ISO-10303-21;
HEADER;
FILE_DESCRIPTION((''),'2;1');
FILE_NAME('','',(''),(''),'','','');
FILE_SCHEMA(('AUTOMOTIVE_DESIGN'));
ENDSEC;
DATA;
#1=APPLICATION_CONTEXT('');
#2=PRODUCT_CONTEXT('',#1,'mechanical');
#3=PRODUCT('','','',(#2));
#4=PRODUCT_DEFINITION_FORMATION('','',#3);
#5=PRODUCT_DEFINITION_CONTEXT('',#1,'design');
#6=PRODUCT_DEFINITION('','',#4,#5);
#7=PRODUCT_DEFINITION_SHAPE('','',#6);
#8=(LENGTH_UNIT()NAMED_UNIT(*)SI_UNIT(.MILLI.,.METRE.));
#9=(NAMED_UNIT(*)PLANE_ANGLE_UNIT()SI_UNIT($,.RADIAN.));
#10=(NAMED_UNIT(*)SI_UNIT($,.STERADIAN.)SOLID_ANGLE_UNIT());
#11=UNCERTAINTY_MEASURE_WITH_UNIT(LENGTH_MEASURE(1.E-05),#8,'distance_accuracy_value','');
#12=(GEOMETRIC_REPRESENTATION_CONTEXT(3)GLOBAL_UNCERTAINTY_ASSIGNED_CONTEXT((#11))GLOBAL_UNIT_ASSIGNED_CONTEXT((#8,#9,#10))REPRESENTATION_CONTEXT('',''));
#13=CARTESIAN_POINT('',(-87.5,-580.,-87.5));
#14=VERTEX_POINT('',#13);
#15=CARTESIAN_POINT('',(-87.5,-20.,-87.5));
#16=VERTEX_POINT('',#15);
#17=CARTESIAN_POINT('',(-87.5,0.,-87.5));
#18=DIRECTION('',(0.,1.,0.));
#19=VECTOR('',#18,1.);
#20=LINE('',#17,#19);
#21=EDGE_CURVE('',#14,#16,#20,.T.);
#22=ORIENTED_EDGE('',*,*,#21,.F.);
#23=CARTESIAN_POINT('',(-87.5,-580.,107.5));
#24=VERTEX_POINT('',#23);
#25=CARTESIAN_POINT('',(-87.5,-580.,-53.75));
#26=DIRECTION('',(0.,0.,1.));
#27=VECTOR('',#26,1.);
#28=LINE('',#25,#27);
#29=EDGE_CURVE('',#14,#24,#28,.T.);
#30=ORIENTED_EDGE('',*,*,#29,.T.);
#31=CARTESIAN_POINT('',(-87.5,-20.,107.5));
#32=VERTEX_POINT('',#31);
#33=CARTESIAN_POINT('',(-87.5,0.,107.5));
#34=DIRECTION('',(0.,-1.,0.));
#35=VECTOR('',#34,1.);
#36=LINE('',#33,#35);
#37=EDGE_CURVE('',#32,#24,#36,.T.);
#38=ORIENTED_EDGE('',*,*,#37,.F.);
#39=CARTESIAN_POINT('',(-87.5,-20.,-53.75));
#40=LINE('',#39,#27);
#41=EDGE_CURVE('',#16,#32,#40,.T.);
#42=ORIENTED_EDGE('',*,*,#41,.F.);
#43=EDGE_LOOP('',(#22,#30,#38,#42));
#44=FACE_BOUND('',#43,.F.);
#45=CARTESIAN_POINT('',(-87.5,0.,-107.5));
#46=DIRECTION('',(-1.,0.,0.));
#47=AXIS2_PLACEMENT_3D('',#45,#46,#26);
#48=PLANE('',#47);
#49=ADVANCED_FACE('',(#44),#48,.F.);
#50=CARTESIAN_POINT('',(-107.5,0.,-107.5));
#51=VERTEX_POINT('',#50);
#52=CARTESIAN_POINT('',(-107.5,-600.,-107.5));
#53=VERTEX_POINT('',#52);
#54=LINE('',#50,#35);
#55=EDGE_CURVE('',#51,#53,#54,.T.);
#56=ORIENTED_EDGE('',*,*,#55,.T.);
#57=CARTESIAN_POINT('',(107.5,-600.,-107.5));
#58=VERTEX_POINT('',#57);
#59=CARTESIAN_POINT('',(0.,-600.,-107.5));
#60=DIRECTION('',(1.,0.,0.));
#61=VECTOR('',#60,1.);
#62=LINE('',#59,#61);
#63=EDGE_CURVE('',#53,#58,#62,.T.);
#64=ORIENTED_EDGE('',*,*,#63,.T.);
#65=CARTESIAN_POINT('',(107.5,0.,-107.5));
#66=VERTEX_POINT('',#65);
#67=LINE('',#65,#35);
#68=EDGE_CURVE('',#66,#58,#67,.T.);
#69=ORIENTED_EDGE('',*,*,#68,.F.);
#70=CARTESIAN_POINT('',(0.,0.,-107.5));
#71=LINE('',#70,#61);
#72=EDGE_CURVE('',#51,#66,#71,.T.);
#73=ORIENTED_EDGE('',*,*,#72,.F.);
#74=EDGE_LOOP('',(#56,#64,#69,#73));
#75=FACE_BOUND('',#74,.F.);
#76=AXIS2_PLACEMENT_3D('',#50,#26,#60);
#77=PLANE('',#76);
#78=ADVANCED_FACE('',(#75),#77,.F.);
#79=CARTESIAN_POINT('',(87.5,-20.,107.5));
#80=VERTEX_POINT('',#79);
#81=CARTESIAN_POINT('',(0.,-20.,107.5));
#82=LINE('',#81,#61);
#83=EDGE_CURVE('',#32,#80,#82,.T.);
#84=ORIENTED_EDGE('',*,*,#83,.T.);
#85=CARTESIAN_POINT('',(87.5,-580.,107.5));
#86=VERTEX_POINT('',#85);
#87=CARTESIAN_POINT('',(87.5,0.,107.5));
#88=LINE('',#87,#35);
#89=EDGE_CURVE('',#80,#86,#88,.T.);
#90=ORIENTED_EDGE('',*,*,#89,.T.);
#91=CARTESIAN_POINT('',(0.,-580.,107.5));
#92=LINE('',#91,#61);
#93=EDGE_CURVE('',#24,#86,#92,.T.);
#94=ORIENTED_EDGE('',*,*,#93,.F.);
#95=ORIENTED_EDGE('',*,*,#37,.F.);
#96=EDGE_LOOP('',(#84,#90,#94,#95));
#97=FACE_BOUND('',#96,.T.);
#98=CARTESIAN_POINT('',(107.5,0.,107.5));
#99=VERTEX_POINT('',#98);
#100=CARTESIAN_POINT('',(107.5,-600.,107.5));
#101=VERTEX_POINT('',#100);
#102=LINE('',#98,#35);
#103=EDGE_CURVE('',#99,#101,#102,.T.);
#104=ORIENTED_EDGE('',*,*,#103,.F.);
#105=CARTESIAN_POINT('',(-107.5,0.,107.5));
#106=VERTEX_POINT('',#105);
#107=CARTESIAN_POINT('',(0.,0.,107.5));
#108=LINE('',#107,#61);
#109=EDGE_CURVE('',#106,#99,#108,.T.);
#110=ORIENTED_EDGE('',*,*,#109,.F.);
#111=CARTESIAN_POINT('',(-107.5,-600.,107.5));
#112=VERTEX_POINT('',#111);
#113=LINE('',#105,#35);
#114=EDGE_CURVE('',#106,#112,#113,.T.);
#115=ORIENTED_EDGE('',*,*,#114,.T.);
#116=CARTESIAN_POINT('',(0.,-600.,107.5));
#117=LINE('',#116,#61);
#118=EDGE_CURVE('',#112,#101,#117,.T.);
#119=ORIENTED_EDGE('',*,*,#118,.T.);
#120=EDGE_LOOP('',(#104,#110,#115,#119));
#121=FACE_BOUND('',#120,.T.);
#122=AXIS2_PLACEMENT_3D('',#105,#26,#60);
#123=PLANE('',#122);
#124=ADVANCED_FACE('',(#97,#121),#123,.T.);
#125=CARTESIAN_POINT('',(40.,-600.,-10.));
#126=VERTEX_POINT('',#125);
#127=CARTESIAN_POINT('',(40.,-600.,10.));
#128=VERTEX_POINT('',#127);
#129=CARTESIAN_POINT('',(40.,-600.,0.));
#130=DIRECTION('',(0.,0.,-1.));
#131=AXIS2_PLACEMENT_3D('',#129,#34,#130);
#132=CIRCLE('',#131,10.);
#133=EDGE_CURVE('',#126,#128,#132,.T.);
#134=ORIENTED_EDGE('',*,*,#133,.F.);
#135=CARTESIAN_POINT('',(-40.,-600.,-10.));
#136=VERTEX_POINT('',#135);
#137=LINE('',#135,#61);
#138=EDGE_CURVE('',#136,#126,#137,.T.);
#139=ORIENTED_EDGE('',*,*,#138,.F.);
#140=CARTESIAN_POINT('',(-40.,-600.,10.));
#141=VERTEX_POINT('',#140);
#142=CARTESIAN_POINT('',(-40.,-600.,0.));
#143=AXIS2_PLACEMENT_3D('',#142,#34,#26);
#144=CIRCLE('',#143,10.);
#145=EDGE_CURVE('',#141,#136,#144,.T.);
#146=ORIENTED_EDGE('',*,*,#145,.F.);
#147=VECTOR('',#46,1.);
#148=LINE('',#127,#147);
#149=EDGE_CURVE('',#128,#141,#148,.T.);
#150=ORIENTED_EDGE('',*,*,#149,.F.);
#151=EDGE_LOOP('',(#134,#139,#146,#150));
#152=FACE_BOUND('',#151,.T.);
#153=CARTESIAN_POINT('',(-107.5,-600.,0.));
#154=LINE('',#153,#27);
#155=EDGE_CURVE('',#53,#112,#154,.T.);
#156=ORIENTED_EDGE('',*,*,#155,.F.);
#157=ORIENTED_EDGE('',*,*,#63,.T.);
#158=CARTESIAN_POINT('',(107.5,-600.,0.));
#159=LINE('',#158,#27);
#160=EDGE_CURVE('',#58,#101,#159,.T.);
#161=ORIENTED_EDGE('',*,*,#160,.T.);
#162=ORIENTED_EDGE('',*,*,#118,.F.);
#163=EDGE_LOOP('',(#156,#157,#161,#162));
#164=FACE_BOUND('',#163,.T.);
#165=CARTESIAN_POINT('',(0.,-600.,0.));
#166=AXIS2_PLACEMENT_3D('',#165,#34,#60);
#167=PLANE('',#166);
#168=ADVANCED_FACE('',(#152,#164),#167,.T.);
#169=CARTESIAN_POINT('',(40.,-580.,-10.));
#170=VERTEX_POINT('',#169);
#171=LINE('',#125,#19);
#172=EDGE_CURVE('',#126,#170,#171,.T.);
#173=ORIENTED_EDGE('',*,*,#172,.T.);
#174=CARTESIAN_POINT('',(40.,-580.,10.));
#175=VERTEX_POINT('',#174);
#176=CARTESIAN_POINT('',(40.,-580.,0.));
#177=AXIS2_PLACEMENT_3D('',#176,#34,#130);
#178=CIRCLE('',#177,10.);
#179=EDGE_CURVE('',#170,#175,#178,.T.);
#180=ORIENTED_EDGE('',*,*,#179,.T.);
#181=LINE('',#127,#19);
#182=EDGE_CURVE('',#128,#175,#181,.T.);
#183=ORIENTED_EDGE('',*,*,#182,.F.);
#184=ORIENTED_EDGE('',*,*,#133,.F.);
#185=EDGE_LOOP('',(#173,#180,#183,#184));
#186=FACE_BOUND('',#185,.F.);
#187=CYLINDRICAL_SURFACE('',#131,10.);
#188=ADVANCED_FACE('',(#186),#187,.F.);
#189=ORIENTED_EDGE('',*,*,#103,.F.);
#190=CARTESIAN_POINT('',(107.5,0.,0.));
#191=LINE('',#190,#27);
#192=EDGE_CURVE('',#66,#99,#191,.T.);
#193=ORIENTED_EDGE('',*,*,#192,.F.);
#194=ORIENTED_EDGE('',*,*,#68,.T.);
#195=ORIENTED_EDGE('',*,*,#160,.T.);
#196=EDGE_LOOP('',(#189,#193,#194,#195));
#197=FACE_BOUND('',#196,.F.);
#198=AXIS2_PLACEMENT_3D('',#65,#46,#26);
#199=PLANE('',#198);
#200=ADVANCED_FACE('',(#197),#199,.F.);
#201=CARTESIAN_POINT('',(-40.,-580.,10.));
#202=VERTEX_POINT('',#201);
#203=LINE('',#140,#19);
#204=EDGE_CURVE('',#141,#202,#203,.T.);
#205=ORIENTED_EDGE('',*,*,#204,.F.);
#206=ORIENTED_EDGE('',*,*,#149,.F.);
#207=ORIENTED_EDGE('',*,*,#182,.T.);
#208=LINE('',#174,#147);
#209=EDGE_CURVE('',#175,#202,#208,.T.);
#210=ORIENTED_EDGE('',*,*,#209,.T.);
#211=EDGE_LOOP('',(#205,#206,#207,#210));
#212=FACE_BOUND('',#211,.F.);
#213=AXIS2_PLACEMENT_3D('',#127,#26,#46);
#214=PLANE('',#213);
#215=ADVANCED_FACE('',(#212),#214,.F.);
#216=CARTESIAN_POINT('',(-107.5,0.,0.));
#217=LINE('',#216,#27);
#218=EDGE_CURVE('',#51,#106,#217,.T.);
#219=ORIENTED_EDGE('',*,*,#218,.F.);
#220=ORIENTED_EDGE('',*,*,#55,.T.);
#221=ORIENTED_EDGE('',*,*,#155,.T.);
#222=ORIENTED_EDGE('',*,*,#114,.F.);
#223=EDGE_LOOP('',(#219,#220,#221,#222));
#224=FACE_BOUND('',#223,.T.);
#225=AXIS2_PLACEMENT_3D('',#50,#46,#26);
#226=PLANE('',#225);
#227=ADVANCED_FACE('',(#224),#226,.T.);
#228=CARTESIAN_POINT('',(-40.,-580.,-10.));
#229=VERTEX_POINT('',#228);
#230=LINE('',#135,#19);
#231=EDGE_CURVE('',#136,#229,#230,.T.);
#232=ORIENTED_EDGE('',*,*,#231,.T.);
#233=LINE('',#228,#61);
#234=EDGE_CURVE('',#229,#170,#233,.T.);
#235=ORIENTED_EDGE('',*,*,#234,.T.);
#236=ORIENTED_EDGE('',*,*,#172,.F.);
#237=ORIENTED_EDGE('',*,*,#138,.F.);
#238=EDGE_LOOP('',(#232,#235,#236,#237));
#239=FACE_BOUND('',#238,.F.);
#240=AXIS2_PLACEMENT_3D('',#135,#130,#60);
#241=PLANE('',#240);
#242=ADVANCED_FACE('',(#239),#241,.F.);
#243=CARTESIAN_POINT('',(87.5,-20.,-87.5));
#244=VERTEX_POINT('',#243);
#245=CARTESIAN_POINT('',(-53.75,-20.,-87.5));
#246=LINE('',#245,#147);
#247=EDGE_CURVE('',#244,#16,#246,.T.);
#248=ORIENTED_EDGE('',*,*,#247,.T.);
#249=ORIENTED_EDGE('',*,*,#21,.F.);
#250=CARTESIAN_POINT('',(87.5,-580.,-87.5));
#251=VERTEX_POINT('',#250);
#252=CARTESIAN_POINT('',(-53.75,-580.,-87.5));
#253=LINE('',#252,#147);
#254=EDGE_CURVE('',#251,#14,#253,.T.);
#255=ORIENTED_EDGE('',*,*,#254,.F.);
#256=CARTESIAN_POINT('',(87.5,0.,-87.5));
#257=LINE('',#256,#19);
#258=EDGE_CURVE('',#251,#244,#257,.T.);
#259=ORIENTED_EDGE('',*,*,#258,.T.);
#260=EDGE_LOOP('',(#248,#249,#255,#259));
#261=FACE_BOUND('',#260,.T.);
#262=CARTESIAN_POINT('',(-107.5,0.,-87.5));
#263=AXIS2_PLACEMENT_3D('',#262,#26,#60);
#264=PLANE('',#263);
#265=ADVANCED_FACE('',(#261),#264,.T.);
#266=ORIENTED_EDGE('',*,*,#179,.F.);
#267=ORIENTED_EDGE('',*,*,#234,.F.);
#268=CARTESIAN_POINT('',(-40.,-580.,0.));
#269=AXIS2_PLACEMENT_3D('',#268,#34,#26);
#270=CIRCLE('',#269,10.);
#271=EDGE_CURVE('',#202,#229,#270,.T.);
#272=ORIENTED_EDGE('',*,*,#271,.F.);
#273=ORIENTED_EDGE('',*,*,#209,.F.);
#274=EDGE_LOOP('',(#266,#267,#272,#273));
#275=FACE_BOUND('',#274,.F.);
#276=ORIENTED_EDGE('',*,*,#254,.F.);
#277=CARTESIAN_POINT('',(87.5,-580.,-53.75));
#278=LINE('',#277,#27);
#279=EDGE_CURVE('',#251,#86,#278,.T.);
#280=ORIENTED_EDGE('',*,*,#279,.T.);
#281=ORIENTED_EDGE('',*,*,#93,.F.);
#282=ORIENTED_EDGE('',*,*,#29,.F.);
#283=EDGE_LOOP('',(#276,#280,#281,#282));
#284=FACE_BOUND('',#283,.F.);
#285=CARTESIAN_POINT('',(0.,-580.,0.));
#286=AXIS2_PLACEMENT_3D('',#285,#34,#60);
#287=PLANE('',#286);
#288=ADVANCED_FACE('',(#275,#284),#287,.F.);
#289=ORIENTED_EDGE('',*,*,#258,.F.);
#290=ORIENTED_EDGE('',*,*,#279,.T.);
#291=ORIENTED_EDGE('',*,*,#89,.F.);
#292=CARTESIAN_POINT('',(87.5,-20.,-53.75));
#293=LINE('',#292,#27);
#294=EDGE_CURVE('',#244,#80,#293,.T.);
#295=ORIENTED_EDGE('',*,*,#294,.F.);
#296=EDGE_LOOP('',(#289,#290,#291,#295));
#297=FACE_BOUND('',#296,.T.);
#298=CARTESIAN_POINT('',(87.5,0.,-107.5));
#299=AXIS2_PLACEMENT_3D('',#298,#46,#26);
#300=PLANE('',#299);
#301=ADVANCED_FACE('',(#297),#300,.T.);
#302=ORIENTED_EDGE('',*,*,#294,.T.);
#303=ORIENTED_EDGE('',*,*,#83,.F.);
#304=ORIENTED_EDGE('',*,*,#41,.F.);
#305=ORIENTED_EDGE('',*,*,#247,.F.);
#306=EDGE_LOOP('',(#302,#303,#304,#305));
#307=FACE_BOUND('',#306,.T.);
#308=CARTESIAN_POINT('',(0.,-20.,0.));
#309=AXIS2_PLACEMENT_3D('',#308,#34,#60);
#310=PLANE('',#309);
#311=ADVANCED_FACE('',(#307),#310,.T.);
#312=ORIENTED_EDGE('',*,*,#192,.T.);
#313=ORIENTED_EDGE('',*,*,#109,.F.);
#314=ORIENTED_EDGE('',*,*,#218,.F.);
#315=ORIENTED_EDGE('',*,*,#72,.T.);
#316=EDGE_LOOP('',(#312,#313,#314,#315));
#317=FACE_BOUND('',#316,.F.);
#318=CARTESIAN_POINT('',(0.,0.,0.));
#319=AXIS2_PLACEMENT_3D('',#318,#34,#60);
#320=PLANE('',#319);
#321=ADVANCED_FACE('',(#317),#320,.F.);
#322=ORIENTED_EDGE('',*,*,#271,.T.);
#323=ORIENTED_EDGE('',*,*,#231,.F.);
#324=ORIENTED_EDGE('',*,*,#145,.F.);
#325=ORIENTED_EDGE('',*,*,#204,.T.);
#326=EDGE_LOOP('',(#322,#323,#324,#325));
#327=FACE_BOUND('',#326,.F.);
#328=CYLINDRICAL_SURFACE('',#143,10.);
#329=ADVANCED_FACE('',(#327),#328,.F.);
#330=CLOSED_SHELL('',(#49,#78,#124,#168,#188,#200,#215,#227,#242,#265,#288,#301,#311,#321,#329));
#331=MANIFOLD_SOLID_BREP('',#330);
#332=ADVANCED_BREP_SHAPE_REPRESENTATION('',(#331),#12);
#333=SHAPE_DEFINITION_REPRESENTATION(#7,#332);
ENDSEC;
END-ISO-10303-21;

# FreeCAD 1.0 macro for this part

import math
import FreeCAD as App
import Part
import Sketcher
from FreeCAD import Vector
Q = App.Units.Quantity


def faces_at(feature, points):
    """Names of the faces that lie closest to the given points."""
    faces = feature.Shape.Faces
    near = lambda p: min(range(len(faces)), key=lambda i: faces[i].distToShape(Part.Vertex(*p))[0])
    return sorted({f"Face{near(p) + 1}" for p in points})


def add_polygon(sketch, points):
    """Adds a closed chain of lines whose ends are joined by coincident constraints."""
    first, n = sketch.GeometryCount, len(points)
    for a, b in zip(points, points[1:] + points[:1]):
        sketch.addGeometry(Part.LineSegment(App.Vector(*a, 0), App.Vector(*b, 0)), False)
    for i in range(n):
        sketch.addConstraint(Sketcher.Constraint("Coincident", first + i, 2, first + (i + 1) % n, 1))

doc = App.newDocument("Part")
body = doc.addObject("PartDesign::Body", "Body")

# Sketch on XZ plane
sketch1 = doc.addObject("Sketcher::SketchObject", "Sketch")
body.addObject(sketch1)
sketch1.AttachmentSupport = (doc.XZ_Plane, [""])
sketch1.MapMode = "FlatFace"
add_polygon(sketch1, [(-108, 108), (-108, -108), (108, -108), (108, 108)])  # lines 0-3
sketch1.addConstraint([
    Sketcher.Constraint("Vertical", 0),
    Sketcher.Constraint("Horizontal", 1),
    Sketcher.Constraint("Vertical", 2),
    Sketcher.Constraint("Horizontal", 3),
    Sketcher.Constraint("Symmetric", 0, 2, 2, 2, -1, 1),
    Sketcher.Constraint("Equal", 3, 0),
    Sketcher.Constraint("DistanceX", 1, 1, 1, 2, Q("215 mm")),
])
pad1 = doc.addObject("PartDesign::Pad", "Pad")
body.addObject(pad1)
pad1.Profile = sketch1
pad1.Length = 600
doc.recompute()

thickness = doc.addObject("PartDesign::Thickness", "Thickness")
body.addObject(thickness)
thickness.Base = (pad1, faces_at(pad1, [(0, -300, 107.5)]))
thickness.Value = 20
thickness.Reversed = True
thickness.Join = "Arc"

# Sketch on XZ plane
sketch2 = doc.addObject("Sketcher::SketchObject", "Sketch001")
body.addObject(sketch2)
sketch2.AttachmentSupport = (doc.XZ_Plane, [""])
sketch2.MapMode = "FlatFace"
sketch2.AttachmentOffset = App.Placement(Vector(0, 0, 600), App.Rotation())
sketch2.addGeometry([
    Part.LineSegment(Vector(-40, -10, 0), Vector(40, -10, 0)),
    Part.ArcOfCircle(Part.Circle(Vector(40, 0, 0), Vector(0, 0, 1), 10), math.radians(-90), math.radians(90)),
    Part.LineSegment(Vector(40, 10, 0), Vector(-40, 10, 0)),
    Part.ArcOfCircle(Part.Circle(Vector(-40, 0, 0), Vector(0, 0, 1), 10), math.radians(90), math.radians(270)),
], False)
sketch2.addConstraint([
    Sketcher.Constraint("Tangent", 0, 2, 1, 1),
    Sketcher.Constraint("Tangent", 1, 2, 2, 1),
    Sketcher.Constraint("Tangent", 2, 2, 3, 1),
    Sketcher.Constraint("Tangent", 3, 2, 0, 1),
    Sketcher.Constraint("Horizontal", 0),
    Sketcher.Constraint("Horizontal", 2),
    Sketcher.Constraint("Symmetric", 1, 3, 3, 3, -1, 1),
    Sketcher.Constraint("Radius", 1, Q("10 mm")),
    Sketcher.Constraint("DistanceX", 0, 1, 0, 2, Q("80 mm")),
])
pocket1 = doc.addObject("PartDesign::Pocket", "Pocket")
body.addObject(pocket1)
pocket1.Profile = sketch2
pocket1.Length = 20

doc.recompute()
